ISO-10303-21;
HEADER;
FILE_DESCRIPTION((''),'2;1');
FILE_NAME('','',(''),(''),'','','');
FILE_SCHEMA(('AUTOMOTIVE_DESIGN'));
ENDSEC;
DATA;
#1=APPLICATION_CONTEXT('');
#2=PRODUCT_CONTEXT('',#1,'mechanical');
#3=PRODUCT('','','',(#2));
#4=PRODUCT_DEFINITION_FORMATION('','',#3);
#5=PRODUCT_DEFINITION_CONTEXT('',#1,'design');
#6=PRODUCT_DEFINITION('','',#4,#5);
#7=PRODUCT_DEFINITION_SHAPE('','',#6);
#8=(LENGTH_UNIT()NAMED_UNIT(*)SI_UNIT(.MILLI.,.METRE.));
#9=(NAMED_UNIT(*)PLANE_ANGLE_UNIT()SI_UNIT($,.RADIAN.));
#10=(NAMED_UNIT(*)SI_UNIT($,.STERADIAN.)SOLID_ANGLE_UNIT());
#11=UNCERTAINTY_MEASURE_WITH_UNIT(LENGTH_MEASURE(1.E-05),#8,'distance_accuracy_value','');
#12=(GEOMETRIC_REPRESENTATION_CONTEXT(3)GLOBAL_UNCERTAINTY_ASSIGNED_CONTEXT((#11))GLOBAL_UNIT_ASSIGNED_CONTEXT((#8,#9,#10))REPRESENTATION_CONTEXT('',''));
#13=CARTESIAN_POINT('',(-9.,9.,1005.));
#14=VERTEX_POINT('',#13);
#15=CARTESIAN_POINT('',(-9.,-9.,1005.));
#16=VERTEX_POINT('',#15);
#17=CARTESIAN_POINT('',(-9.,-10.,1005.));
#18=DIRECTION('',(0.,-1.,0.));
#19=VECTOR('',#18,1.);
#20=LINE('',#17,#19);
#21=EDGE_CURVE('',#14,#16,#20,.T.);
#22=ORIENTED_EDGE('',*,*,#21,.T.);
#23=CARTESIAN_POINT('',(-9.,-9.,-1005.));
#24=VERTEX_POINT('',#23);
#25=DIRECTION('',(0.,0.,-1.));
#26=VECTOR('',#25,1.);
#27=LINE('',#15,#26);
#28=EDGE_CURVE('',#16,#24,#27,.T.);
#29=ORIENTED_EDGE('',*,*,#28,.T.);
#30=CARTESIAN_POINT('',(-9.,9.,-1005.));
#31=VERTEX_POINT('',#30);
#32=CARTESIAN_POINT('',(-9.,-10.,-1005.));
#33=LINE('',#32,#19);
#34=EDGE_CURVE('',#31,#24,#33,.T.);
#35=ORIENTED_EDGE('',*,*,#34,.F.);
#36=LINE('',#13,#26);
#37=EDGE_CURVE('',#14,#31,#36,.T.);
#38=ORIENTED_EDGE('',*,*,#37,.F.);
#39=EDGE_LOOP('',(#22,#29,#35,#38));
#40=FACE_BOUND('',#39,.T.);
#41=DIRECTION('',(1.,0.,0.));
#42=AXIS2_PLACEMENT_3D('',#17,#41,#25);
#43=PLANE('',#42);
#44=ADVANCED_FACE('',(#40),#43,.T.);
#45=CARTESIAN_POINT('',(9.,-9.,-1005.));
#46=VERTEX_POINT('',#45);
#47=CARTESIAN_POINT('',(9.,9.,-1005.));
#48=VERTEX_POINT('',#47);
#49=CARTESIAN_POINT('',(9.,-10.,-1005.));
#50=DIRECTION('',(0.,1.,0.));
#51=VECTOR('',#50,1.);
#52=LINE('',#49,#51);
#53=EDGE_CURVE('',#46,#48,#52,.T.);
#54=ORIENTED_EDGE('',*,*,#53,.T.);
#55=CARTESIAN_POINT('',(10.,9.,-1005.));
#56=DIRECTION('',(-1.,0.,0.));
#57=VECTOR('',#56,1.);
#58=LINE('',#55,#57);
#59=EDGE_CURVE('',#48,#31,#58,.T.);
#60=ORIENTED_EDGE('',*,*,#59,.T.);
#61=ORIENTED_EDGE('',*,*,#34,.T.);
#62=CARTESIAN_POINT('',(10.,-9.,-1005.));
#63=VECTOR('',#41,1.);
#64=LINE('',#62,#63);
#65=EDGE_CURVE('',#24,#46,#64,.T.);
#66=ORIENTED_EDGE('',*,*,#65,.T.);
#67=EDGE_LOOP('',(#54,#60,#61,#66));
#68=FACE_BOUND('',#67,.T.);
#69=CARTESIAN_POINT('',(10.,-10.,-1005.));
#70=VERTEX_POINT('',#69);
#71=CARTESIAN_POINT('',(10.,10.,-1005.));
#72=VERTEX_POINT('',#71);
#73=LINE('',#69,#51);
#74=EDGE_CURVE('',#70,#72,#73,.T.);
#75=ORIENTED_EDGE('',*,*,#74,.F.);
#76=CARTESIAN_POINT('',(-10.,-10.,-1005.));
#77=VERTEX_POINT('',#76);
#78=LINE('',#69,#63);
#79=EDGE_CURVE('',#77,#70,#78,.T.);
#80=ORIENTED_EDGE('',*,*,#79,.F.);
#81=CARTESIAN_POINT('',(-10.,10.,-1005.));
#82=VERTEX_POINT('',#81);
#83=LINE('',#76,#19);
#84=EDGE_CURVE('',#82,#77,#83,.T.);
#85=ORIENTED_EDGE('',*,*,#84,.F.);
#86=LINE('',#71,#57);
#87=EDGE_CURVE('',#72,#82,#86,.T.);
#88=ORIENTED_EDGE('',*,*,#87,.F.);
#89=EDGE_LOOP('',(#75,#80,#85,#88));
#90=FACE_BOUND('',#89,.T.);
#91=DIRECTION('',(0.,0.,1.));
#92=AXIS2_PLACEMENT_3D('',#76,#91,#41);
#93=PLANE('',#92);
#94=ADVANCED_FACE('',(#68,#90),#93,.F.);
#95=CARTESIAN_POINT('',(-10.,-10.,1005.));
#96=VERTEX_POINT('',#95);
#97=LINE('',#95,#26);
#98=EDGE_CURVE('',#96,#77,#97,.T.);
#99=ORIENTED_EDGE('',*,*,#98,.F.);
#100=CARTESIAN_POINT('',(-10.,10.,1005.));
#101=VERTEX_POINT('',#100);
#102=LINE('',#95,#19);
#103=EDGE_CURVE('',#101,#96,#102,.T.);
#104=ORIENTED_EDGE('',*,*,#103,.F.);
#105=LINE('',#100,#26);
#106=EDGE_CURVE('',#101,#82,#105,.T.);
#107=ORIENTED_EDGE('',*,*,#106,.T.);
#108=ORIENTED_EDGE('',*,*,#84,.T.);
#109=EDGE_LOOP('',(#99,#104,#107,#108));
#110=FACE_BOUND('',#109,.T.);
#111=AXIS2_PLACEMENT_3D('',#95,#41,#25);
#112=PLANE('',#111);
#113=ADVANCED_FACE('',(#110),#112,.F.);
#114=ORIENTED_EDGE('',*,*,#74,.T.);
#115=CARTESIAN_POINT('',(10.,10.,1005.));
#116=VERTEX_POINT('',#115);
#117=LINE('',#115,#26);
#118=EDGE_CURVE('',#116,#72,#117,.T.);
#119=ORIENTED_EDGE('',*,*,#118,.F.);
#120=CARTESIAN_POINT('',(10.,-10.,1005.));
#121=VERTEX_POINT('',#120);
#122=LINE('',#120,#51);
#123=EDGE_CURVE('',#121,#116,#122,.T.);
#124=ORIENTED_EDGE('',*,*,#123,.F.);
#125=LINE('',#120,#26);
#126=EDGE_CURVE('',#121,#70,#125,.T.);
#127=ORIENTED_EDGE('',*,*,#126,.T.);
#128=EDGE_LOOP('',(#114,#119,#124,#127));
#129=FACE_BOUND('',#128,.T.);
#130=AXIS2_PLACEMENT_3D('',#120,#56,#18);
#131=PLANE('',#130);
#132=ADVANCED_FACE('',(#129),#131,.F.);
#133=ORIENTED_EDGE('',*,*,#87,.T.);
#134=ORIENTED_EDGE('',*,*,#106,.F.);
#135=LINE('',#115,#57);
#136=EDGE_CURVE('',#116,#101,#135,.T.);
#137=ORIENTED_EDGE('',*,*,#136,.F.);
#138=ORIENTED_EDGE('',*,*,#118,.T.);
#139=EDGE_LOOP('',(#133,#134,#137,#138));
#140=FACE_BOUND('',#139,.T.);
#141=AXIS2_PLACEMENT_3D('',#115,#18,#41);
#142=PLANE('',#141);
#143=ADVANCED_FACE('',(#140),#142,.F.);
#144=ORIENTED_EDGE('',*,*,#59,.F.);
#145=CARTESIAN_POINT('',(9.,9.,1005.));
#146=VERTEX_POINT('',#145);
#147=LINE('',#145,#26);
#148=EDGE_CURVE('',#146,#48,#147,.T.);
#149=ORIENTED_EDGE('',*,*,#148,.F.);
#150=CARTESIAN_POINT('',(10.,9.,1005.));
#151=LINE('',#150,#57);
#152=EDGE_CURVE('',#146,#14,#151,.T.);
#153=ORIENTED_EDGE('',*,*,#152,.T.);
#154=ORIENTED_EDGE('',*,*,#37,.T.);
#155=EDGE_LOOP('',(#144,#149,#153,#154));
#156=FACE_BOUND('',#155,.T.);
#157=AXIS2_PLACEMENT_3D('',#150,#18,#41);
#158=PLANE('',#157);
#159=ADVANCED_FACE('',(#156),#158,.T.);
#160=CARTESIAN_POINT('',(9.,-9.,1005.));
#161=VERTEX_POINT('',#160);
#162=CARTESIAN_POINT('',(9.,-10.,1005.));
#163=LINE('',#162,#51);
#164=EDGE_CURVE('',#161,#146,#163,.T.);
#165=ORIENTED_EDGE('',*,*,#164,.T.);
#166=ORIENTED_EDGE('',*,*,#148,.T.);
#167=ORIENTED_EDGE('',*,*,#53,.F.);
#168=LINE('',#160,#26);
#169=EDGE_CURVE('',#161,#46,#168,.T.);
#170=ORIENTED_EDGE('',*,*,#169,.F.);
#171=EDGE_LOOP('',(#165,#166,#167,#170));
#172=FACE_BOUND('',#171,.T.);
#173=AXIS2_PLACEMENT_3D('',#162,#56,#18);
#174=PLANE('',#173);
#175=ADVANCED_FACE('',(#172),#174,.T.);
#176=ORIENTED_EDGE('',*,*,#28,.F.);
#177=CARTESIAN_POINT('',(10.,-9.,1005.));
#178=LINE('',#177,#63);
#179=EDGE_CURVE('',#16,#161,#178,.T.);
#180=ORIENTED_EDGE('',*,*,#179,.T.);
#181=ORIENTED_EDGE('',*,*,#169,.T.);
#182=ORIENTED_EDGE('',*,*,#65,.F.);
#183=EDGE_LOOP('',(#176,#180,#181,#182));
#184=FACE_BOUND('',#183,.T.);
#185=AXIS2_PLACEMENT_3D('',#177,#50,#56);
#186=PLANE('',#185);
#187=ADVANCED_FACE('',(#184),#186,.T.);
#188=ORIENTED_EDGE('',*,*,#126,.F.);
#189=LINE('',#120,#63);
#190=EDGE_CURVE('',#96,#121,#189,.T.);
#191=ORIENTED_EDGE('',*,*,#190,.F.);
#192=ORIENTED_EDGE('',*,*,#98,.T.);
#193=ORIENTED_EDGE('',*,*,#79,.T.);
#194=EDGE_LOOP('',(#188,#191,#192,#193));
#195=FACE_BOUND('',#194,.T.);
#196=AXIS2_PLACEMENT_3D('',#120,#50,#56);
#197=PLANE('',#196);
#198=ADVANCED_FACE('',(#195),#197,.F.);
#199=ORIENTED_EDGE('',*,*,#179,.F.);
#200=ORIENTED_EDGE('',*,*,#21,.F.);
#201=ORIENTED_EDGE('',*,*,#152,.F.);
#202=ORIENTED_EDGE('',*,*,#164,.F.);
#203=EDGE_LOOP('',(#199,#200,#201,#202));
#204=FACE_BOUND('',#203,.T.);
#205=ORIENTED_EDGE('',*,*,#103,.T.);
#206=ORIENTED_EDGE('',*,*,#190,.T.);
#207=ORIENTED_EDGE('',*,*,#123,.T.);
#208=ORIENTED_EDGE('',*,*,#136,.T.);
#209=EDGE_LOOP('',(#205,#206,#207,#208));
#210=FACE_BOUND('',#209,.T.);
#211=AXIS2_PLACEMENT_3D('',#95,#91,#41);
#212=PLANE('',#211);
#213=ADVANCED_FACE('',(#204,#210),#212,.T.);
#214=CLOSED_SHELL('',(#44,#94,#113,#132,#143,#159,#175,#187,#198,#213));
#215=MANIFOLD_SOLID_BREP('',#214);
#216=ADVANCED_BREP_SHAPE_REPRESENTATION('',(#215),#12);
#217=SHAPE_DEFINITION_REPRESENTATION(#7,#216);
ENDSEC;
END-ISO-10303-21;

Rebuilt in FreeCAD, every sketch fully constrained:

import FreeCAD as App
import Part
import Sketcher

V = App.Vector

doc = App.newDocument("Part")
body = doc.addObject("PartDesign::Body", "Body")

# Sketch on XY plane
sketch1 = doc.addObject("Sketcher::SketchObject", "Sketch")
body.addObject(sketch1)
sketch1.AttachmentSupport = (doc.XY_Plane, [""])
sketch1.MapMode = "FlatFace"
sketch1.addGeometry([
    Part.LineSegment(V(-10, 10, 0), V(-10, -10, 0)),  # 0
    Part.LineSegment(V(-10, -10, 0), V(10, -10, 0)),  # 1
    Part.LineSegment(V(10, -10, 0), V(10, 10, 0)),  # 2
    Part.LineSegment(V(10, 10, 0), V(-10, 10, 0)),  # 3
    Part.LineSegment(V(9, -9, 0), V(-9, -9, 0)),  # 4
    Part.LineSegment(V(-9, -9, 0), V(-9, 9, 0)),  # 5
    Part.LineSegment(V(-9, 9, 0), V(9, 9, 0)),  # 6
    Part.LineSegment(V(9, 9, 0), V(9, -9, 0)),  # 7
], False)
sketch1.addConstraint([
    Sketcher.Constraint("Coincident", 0, 2, 1, 1),
    Sketcher.Constraint("Coincident", 1, 2, 2, 1),
    Sketcher.Constraint("Coincident", 2, 2, 3, 1),
    Sketcher.Constraint("Coincident", 3, 2, 0, 1),
    Sketcher.Constraint("Coincident", 4, 2, 5, 1),
    Sketcher.Constraint("Coincident", 5, 2, 6, 1),
    Sketcher.Constraint("Coincident", 6, 2, 7, 1),
    Sketcher.Constraint("Coincident", 7, 2, 4, 1),
    Sketcher.Constraint("Vertical", 0),
    Sketcher.Constraint("Horizontal", 1),
    Sketcher.Constraint("Vertical", 2),
    Sketcher.Constraint("Horizontal", 3),
    Sketcher.Constraint("Horizontal", 4),
    Sketcher.Constraint("Vertical", 5),
    Sketcher.Constraint("Horizontal", 6),
    Sketcher.Constraint("Vertical", 7),
    Sketcher.Constraint("Symmetric", 0, 2, 2, 2, -1, 1),
    Sketcher.Constraint("Symmetric", 4, 2, 6, 2, -1, 1),
    Sketcher.Constraint("Equal", 3, 0),
    Sketcher.Constraint("Equal", 6, 5),
    Sketcher.Constraint("DistanceX", 1, 1, 1, 2, 20.0),
    Sketcher.Constraint("DistanceX", 4, 2, 4, 1, 18.0),
])
pad1 = doc.addObject("PartDesign::Pad", "Pad")
body.addObject(pad1)
pad1.Profile = sketch1
pad1.Length = 2010
pad1.Midplane = True

doc.recompute()
